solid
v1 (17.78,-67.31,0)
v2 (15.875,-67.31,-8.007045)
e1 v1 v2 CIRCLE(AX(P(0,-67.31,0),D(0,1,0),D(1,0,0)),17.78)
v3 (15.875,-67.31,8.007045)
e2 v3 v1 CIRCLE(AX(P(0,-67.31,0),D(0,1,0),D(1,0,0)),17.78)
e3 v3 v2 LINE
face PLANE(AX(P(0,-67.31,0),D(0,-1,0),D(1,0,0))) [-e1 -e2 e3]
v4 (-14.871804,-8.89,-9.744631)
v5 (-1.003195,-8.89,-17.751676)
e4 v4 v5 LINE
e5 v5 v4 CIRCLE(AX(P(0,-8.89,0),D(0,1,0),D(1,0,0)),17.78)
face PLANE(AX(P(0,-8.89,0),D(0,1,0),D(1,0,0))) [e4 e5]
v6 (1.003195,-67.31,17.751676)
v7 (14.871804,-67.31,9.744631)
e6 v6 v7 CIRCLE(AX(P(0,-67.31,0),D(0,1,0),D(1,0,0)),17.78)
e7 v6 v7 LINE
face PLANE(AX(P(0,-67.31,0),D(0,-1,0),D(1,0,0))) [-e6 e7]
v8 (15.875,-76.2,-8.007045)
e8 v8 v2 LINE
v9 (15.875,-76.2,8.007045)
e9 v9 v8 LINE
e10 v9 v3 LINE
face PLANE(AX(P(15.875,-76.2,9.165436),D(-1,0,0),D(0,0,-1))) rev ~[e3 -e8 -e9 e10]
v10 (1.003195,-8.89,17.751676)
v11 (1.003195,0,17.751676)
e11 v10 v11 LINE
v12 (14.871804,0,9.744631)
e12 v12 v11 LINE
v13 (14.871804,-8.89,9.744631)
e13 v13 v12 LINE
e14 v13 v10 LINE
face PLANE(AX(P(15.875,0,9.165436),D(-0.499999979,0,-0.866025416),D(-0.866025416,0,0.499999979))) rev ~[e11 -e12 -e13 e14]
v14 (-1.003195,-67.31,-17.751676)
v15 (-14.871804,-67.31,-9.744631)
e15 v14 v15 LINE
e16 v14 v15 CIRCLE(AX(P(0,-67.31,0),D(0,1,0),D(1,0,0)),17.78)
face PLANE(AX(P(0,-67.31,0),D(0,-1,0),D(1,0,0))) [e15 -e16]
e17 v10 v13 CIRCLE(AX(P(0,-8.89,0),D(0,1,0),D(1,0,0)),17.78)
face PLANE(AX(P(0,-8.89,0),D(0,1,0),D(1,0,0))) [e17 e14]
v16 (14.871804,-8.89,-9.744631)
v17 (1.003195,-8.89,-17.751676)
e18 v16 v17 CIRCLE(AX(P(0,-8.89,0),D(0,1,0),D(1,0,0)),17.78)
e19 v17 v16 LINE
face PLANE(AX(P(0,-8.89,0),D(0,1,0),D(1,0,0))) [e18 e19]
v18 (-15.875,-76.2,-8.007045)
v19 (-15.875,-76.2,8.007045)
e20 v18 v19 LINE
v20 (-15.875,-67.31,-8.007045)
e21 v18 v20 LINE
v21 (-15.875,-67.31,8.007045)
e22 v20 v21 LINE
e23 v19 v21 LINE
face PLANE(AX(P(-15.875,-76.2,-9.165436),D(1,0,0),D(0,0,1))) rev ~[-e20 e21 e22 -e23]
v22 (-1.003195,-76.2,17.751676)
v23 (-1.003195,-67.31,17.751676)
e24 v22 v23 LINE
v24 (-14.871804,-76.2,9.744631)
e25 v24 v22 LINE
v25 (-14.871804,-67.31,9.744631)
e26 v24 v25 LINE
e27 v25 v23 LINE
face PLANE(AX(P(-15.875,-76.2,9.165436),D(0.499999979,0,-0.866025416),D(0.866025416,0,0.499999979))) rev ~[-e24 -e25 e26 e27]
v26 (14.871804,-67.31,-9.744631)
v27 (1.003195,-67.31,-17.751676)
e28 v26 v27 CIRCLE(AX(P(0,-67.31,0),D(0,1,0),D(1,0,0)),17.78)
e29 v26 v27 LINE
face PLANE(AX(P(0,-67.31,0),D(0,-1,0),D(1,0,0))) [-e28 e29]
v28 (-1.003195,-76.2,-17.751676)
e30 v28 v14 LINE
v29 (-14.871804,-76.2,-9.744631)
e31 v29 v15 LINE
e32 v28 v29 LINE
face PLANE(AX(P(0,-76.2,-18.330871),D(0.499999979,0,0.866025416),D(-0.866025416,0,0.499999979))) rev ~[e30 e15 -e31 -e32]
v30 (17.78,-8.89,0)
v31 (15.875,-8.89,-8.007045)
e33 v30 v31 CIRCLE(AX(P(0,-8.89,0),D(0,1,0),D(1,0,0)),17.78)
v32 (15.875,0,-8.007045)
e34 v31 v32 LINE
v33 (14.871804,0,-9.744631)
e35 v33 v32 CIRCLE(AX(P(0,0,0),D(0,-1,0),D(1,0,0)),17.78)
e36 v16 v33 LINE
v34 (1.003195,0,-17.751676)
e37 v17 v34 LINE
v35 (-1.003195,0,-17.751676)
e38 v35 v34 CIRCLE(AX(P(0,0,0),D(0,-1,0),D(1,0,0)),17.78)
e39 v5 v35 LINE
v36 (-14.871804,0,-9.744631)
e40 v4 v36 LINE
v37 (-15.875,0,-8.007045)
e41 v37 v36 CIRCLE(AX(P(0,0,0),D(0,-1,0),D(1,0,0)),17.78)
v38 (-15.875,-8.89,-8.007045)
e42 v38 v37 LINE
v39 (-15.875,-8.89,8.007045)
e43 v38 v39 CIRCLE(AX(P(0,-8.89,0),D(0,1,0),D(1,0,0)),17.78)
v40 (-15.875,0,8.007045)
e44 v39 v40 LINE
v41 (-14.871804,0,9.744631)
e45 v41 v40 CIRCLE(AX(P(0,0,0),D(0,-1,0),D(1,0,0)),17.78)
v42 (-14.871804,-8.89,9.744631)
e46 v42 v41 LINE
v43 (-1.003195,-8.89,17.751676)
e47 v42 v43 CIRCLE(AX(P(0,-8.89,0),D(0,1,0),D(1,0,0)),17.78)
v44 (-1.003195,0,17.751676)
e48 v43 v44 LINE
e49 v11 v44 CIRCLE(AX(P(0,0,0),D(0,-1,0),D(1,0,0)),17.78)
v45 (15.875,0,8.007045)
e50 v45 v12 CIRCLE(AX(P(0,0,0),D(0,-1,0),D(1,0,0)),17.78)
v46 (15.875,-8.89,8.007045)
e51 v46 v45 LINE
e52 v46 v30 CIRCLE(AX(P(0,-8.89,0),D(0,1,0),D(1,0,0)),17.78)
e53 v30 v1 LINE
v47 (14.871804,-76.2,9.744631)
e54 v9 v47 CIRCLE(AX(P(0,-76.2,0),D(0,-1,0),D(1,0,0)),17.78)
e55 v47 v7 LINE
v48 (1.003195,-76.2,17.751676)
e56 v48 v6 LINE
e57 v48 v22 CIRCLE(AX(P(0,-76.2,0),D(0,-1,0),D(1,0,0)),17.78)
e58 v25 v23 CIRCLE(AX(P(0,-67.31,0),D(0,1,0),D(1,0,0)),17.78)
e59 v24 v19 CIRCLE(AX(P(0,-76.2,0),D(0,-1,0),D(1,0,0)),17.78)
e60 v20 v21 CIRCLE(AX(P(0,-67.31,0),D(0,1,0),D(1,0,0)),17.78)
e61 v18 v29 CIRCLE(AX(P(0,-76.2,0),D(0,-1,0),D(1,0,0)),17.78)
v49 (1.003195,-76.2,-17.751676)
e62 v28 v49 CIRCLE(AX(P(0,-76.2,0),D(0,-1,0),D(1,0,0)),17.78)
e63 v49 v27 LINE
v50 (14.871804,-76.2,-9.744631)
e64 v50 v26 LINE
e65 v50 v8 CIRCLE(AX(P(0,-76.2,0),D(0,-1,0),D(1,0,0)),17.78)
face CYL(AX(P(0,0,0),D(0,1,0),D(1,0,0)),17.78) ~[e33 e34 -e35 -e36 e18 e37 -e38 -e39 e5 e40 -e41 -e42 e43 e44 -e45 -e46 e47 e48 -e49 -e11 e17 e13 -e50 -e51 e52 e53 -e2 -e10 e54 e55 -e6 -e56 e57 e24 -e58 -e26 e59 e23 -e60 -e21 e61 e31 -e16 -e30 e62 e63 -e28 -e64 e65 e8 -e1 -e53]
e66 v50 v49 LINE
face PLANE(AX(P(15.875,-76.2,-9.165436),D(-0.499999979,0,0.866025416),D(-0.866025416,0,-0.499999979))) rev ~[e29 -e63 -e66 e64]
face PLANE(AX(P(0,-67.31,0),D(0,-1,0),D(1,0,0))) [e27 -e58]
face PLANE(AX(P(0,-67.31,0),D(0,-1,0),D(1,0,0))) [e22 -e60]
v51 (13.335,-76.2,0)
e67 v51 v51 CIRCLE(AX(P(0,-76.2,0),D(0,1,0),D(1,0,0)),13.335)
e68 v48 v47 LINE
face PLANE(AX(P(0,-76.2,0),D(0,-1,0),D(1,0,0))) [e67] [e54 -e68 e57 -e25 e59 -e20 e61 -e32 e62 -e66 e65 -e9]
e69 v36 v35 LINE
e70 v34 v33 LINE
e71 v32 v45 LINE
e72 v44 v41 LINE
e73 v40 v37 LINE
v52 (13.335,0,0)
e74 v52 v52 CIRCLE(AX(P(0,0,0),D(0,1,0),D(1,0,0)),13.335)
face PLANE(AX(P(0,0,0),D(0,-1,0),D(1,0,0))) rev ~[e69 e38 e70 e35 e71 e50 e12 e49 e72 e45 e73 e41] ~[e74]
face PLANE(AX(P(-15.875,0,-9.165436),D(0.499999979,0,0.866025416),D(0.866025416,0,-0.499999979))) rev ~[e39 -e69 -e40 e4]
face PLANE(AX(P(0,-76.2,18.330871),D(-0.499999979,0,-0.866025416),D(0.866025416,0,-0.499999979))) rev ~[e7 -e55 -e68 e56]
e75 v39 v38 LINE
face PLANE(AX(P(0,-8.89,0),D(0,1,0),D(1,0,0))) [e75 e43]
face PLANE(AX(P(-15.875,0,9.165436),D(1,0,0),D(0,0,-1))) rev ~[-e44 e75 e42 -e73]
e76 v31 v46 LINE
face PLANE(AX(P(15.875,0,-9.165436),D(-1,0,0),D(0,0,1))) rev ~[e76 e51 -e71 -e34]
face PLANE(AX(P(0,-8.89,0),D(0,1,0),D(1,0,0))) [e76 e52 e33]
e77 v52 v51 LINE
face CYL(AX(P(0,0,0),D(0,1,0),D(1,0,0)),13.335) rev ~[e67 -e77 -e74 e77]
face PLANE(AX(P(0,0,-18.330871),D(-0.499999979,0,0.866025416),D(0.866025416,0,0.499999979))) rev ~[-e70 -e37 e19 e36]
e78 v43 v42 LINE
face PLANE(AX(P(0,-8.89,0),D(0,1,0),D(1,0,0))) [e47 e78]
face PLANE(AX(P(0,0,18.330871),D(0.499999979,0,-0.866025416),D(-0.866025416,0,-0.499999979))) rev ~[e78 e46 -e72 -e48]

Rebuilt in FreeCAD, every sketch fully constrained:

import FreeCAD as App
import Part
import Sketcher

V = App.Vector
Q = App.Units.Quantity

doc = App.newDocument("Part")
params = doc.addObject("Spreadsheet::Sheet", "Params")
for row, (alias, value) in enumerate([
    ("sketch1_diameter", "1.4 in"),
    ("pad1_length", "3 in"),
    ("sketch2_diameter", "1.05 in"),
    ("pocket1_length", "3 in"),
    ("sketch3_diameter", "1.5 in"),
    ("pocket2_length", "0.35 in"),
    ("sketch4_diameter", "1.5 in"),
    ("pocket3_length", "0.35 in"),
], start=1):
    params.set(f"A{row}", alias)
    params.set(f"B{row}", "=" + value)
    params.setAlias(f"B{row}", alias)

body = doc.addObject("PartDesign::Body", "Body")

# Sketch on XY plane
sketch1 = body.newObject("Sketcher::SketchObject", "Sketch")
sketch1.AttachmentSupport = (doc.getObject("XY_Plane"), [""])
sketch1.MapMode = "FlatFace"
sketch1.addGeometry(Part.Circle(V(0, 0, 0), V(0, 0, 1), 17.78), False)
sketch1.addConstraint(Sketcher.Constraint("Coincident", 0, 3, -1, 1))
sketch1.addConstraint(Sketcher.Constraint("Diameter", 0, Q("1.4 in")))
sketch1.setExpression("Constraints[1]", "Params.sketch1_diameter")
pad1 = body.newObject("PartDesign::Pad", "Pad")
pad1.Profile = sketch1
pad1.setExpression("Length", "Params.pad1_length")
body2 = doc.addObject("PartDesign::Body", "Body001")
doc.recompute()

body.Placement = App.Placement(V(0, 0, 0), App.Rotation(V(1, 0, 0), 90))
boolean = body2.newObject("PartDesign::Boolean", "Boolean")
boolean.Type = "Fuse"
boolean.addObjects([body])

# Sketch on XZ plane
sketch2 = body2.newObject("Sketcher::SketchObject", "Sketch001")
sketch2.AttachmentSupport = (doc.getObject("XZ_Plane001"), [""])
sketch2.MapMode = "FlatFace"
sketch2.addGeometry(Part.Circle(V(0, 0, 0), V(0, 0, 1), 13.335), False)
sketch2.addConstraint(Sketcher.Constraint("Coincident", 0, 3, -1, 1))
sketch2.addConstraint(Sketcher.Constraint("Diameter", 0, Q("1.05 in")))
sketch2.setExpression("Constraints[1]", "Params.sketch2_diameter")
pocket1 = body2.newObject("PartDesign::Pocket", "Pocket")
pocket1.Profile = sketch2
pocket1.setExpression("Length", "Params.pocket1_length")
pocket1.Reversed = True

# Sketch on XZ plane
sketch3 = body2.newObject("Sketcher::SketchObject", "Sketch002")
sketch3.AttachmentSupport = (doc.getObject("XZ_Plane001"), [""])
sketch3.MapMode = "FlatFace"
sketch3.addGeometry(Part.Circle(V(0, 0, 0), V(0, 0, 1), 19.05), False)
sketch3.addGeometry(Part.LineSegment(V(0, 18.330871, 0), V(-15.875, 9.165436, 0)), False)
sketch3.addGeometry(Part.LineSegment(V(-15.875, 9.165436, 0), V(-15.875, -9.165436, 0)), False)
sketch3.addGeometry(Part.LineSegment(V(-15.875, -9.165436, 0), V(0, -18.330871, 0)), False)
sketch3.addGeometry(Part.LineSegment(V(0, -18.330871, 0), V(15.875, -9.165436, 0)), False)
sketch3.addGeometry(Part.LineSegment(V(15.875, -9.165436, 0), V(15.875, 9.165436, 0)), False)
sketch3.addGeometry(Part.LineSegment(V(15.875, 9.165436, 0), V(0, 18.330871, 0)), False)
sketch3.addConstraint(Sketcher.Constraint("Coincident", 1, 2, 2, 1))
sketch3.addConstraint(Sketcher.Constraint("Coincident", 2, 2, 3, 1))
sketch3.addConstraint(Sketcher.Constraint("Coincident", 3, 2, 4, 1))
sketch3.addConstraint(Sketcher.Constraint("Coincident", 4, 2, 5, 1))
sketch3.addConstraint(Sketcher.Constraint("Coincident", 5, 2, 6, 1))
sketch3.addConstraint(Sketcher.Constraint("Coincident", 6, 2, 1, 1))
sketch3.addConstraint(Sketcher.Constraint("Vertical", 2))
sketch3.addConstraint(Sketcher.Constraint("Vertical", 5))
sketch3.addConstraint(Sketcher.Constraint("Coincident", 0, 3, -1, 1))
sketch3.addConstraint(Sketcher.Constraint("Symmetric", 1, 2, 4, 2, -1, 1))
sketch3.addConstraint(Sketcher.Constraint("Symmetric", 3, 2, 6, 2, -1, 1))
sketch3.addConstraint(Sketcher.Constraint("PointOnObject", 3, 2, -2))
sketch3.addConstraint(Sketcher.Constraint("Parallel", 3, 6))
sketch3.addConstraint(Sketcher.Constraint("Horizontal", 2, 2, 4, 2))
sketch3.addConstraint(Sketcher.Constraint("Diameter", 0, Q("1.5 in")))
sketch3.addConstraint(Sketcher.Constraint("Angle", 1, Q("-150.000001 deg")))
sketch3.addConstraint(Sketcher.Constraint("DistanceX", 2, 2, 4, 2, Q("1.25 in")))
sketch3.addConstraint(Sketcher.Constraint("DistanceY", 2, 2, 2, 1, 18.330872))
sketch3.setExpression("Constraints[14]", "Params.sketch3_diameter")
pocket2 = body2.newObject("PartDesign::Pocket", "Pocket001")
pocket2.Profile = sketch3
pocket2.setExpression("Length", "Params.pocket2_length")
pocket2.Reversed = True

# Sketch on XZ plane
sketch4 = body2.newObject("Sketcher::SketchObject", "Sketch003")
sketch4.AttachmentSupport = (doc.getObject("XZ_Plane001"), [""])
sketch4.MapMode = "FlatFace"
sketch4.AttachmentOffset = App.Placement(V(0, 0, 3 * 25.4), App.Rotation())
sketch4.addGeometry(Part.Circle(V(0, 0, 0), V(0, 0, 1), 19.05), False)
sketch4.addGeometry(Part.LineSegment(V(0, -18.330871, 0), V(-15.875, -9.165436, 0)), False)
sketch4.addGeometry(Part.LineSegment(V(-15.875, -9.165436, 0), V(-15.875, 9.165436, 0)), False)
sketch4.addGeometry(Part.LineSegment(V(-15.875, 9.165436, 0), V(0, 18.330871, 0)), False)
sketch4.addGeometry(Part.LineSegment(V(0, 18.330871, 0), V(15.875, 9.165436, 0)), False)
sketch4.addGeometry(Part.LineSegment(V(15.875, 9.165436, 0), V(15.875, -9.165436, 0)), False)
sketch4.addGeometry(Part.LineSegment(V(15.875, -9.165436, 0), V(0, -18.330871, 0)), False)
sketch4.addConstraint(Sketcher.Constraint("Coincident", 1, 2, 2, 1))
sketch4.addConstraint(Sketcher.Constraint("Coincident", 2, 2, 3, 1))
sketch4.addConstraint(Sketcher.Constraint("Coincident", 3, 2, 4, 1))
sketch4.addConstraint(Sketcher.Constraint("Coincident", 4, 2, 5, 1))
sketch4.addConstraint(Sketcher.Constraint("Coincident", 5, 2, 6, 1))
sketch4.addConstraint(Sketcher.Constraint("Coincident", 6, 2, 1, 1))
sketch4.addConstraint(Sketcher.Constraint("Vertical", 2))
sketch4.addConstraint(Sketcher.Constraint("Vertical", 5))
sketch4.addConstraint(Sketcher.Constraint("Coincident", 0, 3, -1, 1))
sketch4.addConstraint(Sketcher.Constraint("Symmetric", 1, 2, 4, 2, -1, 1))
sketch4.addConstraint(Sketcher.Constraint("Symmetric", 3, 2, 6, 2, -1, 1))
sketch4.addConstraint(Sketcher.Constraint("PointOnObject", 3, 2, -2))
sketch4.addConstraint(Sketcher.Constraint("Parallel", 3, 6))
sketch4.addConstraint(Sketcher.Constraint("Horizontal", 2, 2, 4, 2))
sketch4.addConstraint(Sketcher.Constraint("Diameter", 0, Q("1.5 in")))
sketch4.addConstraint(Sketcher.Constraint("Angle", 1, Q("150.000001 deg")))
sketch4.addConstraint(Sketcher.Constraint("DistanceX", 2, 2, 4, 2, Q("1.25 in")))
sketch4.addConstraint(Sketcher.Constraint("DistanceY", 2, 1, 2, 2, 18.330872))
sketch4.setExpression("Constraints[14]", "Params.sketch4_diameter")
pocket3 = body2.newObject("PartDesign::Pocket", "Pocket002")
pocket3.Profile = sketch4
pocket3.setExpression("Length", "Params.pocket3_length")

doc.recompute()
